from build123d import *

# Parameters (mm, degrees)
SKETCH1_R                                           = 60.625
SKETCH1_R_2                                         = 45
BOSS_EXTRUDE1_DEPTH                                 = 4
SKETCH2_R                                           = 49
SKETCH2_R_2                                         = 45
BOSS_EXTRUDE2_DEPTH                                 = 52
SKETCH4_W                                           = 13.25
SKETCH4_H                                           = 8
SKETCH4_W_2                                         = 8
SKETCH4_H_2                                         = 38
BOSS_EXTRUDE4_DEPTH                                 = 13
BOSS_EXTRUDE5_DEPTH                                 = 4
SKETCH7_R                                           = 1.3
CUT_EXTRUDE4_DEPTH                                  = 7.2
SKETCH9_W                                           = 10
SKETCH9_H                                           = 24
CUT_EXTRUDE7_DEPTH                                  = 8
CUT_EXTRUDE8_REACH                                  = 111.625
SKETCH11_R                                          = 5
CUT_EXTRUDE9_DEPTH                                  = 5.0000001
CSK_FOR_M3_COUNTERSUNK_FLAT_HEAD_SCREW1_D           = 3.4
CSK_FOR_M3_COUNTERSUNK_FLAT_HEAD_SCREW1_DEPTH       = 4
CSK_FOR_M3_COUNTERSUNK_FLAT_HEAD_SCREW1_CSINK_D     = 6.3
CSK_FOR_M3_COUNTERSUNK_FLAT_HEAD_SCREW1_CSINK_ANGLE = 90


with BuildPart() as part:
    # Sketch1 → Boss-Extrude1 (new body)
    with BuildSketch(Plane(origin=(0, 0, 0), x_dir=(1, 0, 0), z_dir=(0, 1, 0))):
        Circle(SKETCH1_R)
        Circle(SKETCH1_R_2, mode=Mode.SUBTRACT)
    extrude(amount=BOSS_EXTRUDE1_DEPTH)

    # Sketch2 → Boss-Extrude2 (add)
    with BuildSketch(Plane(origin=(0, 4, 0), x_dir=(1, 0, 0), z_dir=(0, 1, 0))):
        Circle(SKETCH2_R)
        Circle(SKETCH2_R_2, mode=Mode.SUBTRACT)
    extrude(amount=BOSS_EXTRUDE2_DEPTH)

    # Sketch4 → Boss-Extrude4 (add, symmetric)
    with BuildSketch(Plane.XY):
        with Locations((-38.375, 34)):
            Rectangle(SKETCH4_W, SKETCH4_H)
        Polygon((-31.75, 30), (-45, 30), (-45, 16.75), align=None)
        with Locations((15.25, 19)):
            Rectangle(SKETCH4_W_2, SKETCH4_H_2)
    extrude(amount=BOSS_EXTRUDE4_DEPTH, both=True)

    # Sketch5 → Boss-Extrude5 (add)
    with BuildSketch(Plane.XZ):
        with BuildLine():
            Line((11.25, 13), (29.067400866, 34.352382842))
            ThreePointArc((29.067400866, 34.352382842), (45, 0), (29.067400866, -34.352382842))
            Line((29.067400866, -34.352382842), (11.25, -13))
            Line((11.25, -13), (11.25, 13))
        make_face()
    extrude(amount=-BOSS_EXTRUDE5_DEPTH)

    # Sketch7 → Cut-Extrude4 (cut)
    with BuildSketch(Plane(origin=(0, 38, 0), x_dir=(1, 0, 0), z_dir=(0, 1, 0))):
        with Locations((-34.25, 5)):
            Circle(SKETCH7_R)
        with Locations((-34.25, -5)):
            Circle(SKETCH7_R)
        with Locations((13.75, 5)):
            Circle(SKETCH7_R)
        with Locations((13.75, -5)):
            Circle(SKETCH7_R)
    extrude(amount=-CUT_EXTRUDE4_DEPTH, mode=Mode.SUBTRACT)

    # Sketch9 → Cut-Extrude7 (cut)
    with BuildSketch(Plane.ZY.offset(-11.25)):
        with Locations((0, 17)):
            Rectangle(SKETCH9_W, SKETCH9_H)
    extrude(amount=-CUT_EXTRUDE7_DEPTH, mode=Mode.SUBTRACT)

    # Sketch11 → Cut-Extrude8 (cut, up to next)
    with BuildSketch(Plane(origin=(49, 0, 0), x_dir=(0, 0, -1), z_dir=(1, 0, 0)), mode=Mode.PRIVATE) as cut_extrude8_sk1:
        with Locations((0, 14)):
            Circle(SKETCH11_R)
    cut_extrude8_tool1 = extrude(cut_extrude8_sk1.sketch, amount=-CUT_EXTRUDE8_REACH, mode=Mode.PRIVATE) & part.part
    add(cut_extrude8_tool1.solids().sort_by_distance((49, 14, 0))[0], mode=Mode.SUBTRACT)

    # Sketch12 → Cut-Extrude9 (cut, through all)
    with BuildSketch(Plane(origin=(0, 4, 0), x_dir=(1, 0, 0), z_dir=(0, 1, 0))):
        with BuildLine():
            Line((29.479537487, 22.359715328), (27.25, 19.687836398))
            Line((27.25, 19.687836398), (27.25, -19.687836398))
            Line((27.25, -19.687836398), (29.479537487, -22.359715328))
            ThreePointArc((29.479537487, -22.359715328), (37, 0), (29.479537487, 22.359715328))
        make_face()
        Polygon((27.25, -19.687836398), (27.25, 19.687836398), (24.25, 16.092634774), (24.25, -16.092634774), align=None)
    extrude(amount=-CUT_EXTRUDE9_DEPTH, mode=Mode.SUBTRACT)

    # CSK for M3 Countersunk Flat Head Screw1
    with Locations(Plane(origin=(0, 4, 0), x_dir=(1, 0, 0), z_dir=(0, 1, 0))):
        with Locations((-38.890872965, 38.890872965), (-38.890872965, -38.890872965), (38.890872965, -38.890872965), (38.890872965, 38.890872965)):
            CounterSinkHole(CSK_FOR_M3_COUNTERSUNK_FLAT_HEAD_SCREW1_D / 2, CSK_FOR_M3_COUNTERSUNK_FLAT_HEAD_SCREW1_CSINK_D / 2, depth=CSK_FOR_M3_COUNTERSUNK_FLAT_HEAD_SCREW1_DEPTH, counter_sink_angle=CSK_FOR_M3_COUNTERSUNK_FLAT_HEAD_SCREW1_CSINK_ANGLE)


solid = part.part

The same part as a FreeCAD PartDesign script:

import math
import FreeCAD as App
import Part
import Sketcher

V = App.Vector
Q = App.Units.Quantity

doc = App.newDocument("Part")
params = doc.addObject("Spreadsheet::Sheet", "Params")
for row, (alias, value) in enumerate([
    ("sketch1_diameter", "90 mm"),
    ("sketch1_diameter2", "121.25 mm"),
    ("pad1_length", "4 mm"),
    ("sketch2_diameter", "98 mm"),
    ("sketch2_diameter2", "90 mm"),
    ("pad2_length", "52 mm"),
    ("sketch3_width", "8 mm"),
    ("sketch3_height", "38 mm"),
    ("sketch3_width2", "13.25 mm"),
    ("pad3_length", "26 mm"),
    ("sketch4_radius", "45 mm"),
    ("sketch4_height", "26 mm"),
    ("pad4_length", "4 mm"),
    ("sketch5_diameter", "2.6 mm"),
    ("pocket1_length", "7.2 mm"),
    ("sketch6_width", "24 mm"),
    ("sketch6_height", "10 mm"),
    ("pocket2_length", "8 mm"),
    ("sketch7_diameter", "10 mm"),
    ("sketch8_radius", "37 mm"),
    ("sketch9_diameter", "3.4 mm"),
    ("hole_diameter", "3.4 mm"),
    ("hole_depth", "4 mm"),
    ("hole_csink_diameter", "6.3 mm"),
], start=1):
    params.set(f"A{row}", alias)
    params.set(f"B{row}", "=" + value)
    params.setAlias(f"B{row}", alias)

body = doc.addObject("PartDesign::Body", "Body")
body.AllowCompound = True

# Sketch on XZ plane
sketch1 = body.newObject("Sketcher::SketchObject", "Sketch")
sketch1.AttachmentSupport = (doc.getObject("XZ_Plane"), [""])
sketch1.MapMode = "FlatFace"
sketch1.addGeometry([
    Part.Circle(V(0, 0, 0), V(0, 0, 1), 60.625),
    Part.Circle(V(0, 0, 0), V(0, 0, 1), 45),
], False)
sketch1.addConstraint([
    Sketcher.Constraint("Coincident", 0, 3, -1, 1),
    Sketcher.Constraint("Coincident", 1, 3, -1, 1),
    Sketcher.Constraint("Diameter", 1, Q("90 mm")),
    Sketcher.Constraint("Diameter", 0, Q("121.25 mm")),
])
sketch1.setExpression("Constraints[2]", "Params.sketch1_diameter")
sketch1.setExpression("Constraints[3]", "Params.sketch1_diameter2")
pad1 = body.newObject("PartDesign::Pad", "Pad")
pad1.Profile = sketch1
pad1.setExpression("Length", "Params.pad1_length")
pad1.Reversed = True

# Sketch on XZ plane
sketch2 = body.newObject("Sketcher::SketchObject", "Sketch001")
sketch2.AttachmentSupport = (doc.getObject("XZ_Plane"), [""])
sketch2.MapMode = "FlatFace"
sketch2.AttachmentOffset = App.Placement(V(0, 0, -4), App.Rotation())
sketch2.addGeometry([
    Part.Circle(V(0, 0, 0), V(0, 0, 1), 49),
    Part.Circle(V(0, 0, 0), V(0, 0, 1), 45),
], False)
sketch2.addConstraint([
    Sketcher.Constraint("Coincident", 0, 3, -1, 1),
    Sketcher.Constraint("Coincident", 1, 3, -1, 1),
    Sketcher.Constraint("Diameter", 0, Q("98 mm")),
    Sketcher.Constraint("Diameter", 1, Q("90 mm")),
])
sketch2.setExpression("Constraints[2]", "Params.sketch2_diameter")
sketch2.setExpression("Constraints[3]", "Params.sketch2_diameter2")
pad2 = body.newObject("PartDesign::Pad", "Pad001")
pad2.Profile = sketch2
pad2.setExpression("Length", "Params.pad2_length")
pad2.Reversed = True

# Sketch on XY plane
sketch3 = body.newObject("Sketcher::SketchObject", "Sketch002")
sketch3.AttachmentSupport = (doc.getObject("XY_Plane"), [""])
sketch3.MapMode = "FlatFace"
sketch3.addGeometry([
    Part.LineSegment(V(-45, 38, 0), V(-45, 16.75, 0)),  # 0
    Part.LineSegment(V(-45, 16.75, 0), V(-31.75, 30, 0)),  # 1
    Part.LineSegment(V(-31.75, 30, 0), V(-31.75, 38, 0)),  # 2
    Part.LineSegment(V(-31.75, 38, 0), V(-45, 38, 0)),  # 3
    Part.LineSegment(V(11.25, 38, 0), V(11.25, 0, 0)),  # 4
    Part.LineSegment(V(11.25, 0, 0), V(19.25, 0, 0)),  # 5
    Part.LineSegment(V(19.25, 0, 0), V(19.25, 38, 0)),  # 6
    Part.LineSegment(V(19.25, 38, 0), V(11.25, 38, 0)),  # 7
], False)
sketch3.addConstraint([
    Sketcher.Constraint("Coincident", 0, 2, 1, 1),
    Sketcher.Constraint("Coincident", 1, 2, 2, 1),
    Sketcher.Constraint("Coincident", 2, 2, 3, 1),
    Sketcher.Constraint("Coincident", 3, 2, 0, 1),
    Sketcher.Constraint("Coincident", 4, 2, 5, 1),
    Sketcher.Constraint("Coincident", 5, 2, 6, 1),
    Sketcher.Constraint("Coincident", 6, 2, 7, 1),
    Sketcher.Constraint("Coincident", 7, 2, 4, 1),
    Sketcher.Constraint("Vertical", 0),
    Sketcher.Constraint("Vertical", 2),
    Sketcher.Constraint("Horizontal", 3),
    Sketcher.Constraint("Vertical", 4),
    Sketcher.Constraint("Horizontal", 5),
    Sketcher.Constraint("Vertical", 6),
    Sketcher.Constraint("Horizontal", 7),
    Sketcher.Constraint("PointOnObject", 4, 2, -1),
    Sketcher.Constraint("Horizontal", 3, 2, 6, 2),
    Sketcher.Constraint("Equal", 7, 2),
    Sketcher.Constraint("DistanceX", 5, 1, 5, 2, Q("8 mm")),
    Sketcher.Constraint("DistanceY", 4, 2, 4, 1, Q("38 mm")),
    Sketcher.Constraint("Angle", 1, Q("45 deg")),
    Sketcher.Constraint("DistanceX", 0, 2, -1, 1, Q("45 mm")),
    Sketcher.Constraint("DistanceX", 1, 2, 4, 2, Q("43 mm")),
    Sketcher.Constraint("DistanceX", 3, 2, 3, 1, Q("13.25 mm")),
])
sketch3.setExpression("Constraints[18]", "Params.sketch3_width")
sketch3.setExpression("Constraints[19]", "Params.sketch3_height")
sketch3.setExpression("Constraints[23]", "Params.sketch3_width2")
pad3 = body.newObject("PartDesign::Pad", "Pad002")
pad3.Profile = sketch3
pad3.setExpression("Length", "Params.pad3_length")
pad3.Midplane = True

# Sketch on XZ plane
sketch4 = body.newObject("Sketcher::SketchObject", "Sketch003")
sketch4.AttachmentSupport = (doc.getObject("XZ_Plane"), [""])
sketch4.MapMode = "FlatFace"
sketch4.addGeometry([
    Part.LineSegment(V(29.067401, 34.352383, 0), V(11.25, 13, 0)),
    Part.LineSegment(V(11.25, 13, 0), V(11.25, -13, 0)),
    Part.LineSegment(V(11.25, -13, 0), V(29.067401, -34.352383, 0)),
    Part.ArcOfCircle(Part.Circle(V(0, 0, 0), V(0, 0, 1), 45), math.radians(-49.763642), math.radians(49.763642)),
], False)
sketch4.addConstraint([
    Sketcher.Constraint("Coincident", 0, 2, 1, 1),
    Sketcher.Constraint("Coincident", 1, 2, 2, 1),
    Sketcher.Constraint("Coincident", 2, 2, 3, 1),
    Sketcher.Constraint("Coincident", 3, 2, 0, 1),
    Sketcher.Constraint("Vertical", 1),
    Sketcher.Constraint("Coincident", 3, 3, -1, 1),
    Sketcher.Constraint("Vertical", 2, 2, 3, 2),
    Sketcher.Constraint("Equal", 0, 2),
    Sketcher.Constraint("Radius", 3, Q("45 mm")),
    Sketcher.Constraint("DistanceY", 1, 2, 1, 1, Q("26 mm")),
    Sketcher.Constraint("DistanceX", -1, 1, 0, 2, Q("11.25 mm")),
    Sketcher.Constraint("DistanceX", -1, 1, 2, 2, Q("29.067401 mm")),
])
sketch4.setExpression("Constraints[8]", "Params.sketch4_radius")
sketch4.setExpression("Constraints[9]", "Params.sketch4_height")
pad4 = body.newObject("PartDesign::Pad", "Pad003")
pad4.Profile = sketch4
pad4.setExpression("Length", "Params.pad4_length")
pad4.Reversed = True

# Sketch on XZ plane
sketch5 = body.newObject("Sketcher::SketchObject", "Sketch004")
sketch5.AttachmentSupport = (doc.getObject("XZ_Plane"), [""])
sketch5.MapMode = "FlatFace"
sketch5.AttachmentOffset = App.Placement(V(0, 0, -38), App.Rotation())
sketch5.addGeometry([
    Part.Circle(V(-34.25, -5, 0), V(0, 0, 1), 1.3),
    Part.Circle(V(-34.25, 5, 0), V(0, 0, 1), 1.3),
    Part.Circle(V(13.75, -5, 0), V(0, 0, 1), 1.3),
    Part.Circle(V(13.75, 5, 0), V(0, 0, 1), 1.3),
], False)
sketch5.addConstraint([
    Sketcher.Constraint("Equal", 0, 1),
    Sketcher.Constraint("Equal", 1, 2),
    Sketcher.Constraint("Equal", 2, 3),
    Sketcher.Constraint("Symmetric", 0, 3, 1, 3, -1),
    Sketcher.Constraint("Symmetric", 2, 3, 3, 3, -1),
    Sketcher.Constraint("Horizontal", 0, 3, 2, 3),
    Sketcher.Constraint("Diameter", 0, Q("2.6 mm")),
    Sketcher.Constraint("DistanceY", 0, 3, -1, 1, Q("5 mm")),
    Sketcher.Constraint("DistanceX", 0, 3, 2, 3, Q("48 mm")),
    Sketcher.Constraint("DistanceX", 0, 3, -1, 1, Q("34.25 mm")),
])
sketch5.setExpression("Constraints[6]", "Params.sketch5_diameter")
pocket1 = body.newObject("PartDesign::Pocket", "Pocket")
pocket1.Profile = sketch5
pocket1.setExpression("Length", "Params.pocket1_length")
pocket1.Reversed = True

# Sketch on YZ plane
sketch6 = body.newObject("Sketcher::SketchObject", "Sketch005")
sketch6.AttachmentSupport = (doc.getObject("YZ_Plane"), [""])
sketch6.MapMode = "FlatFace"
sketch6.AttachmentOffset = App.Placement(V(0, 0, 11.25), App.Rotation())
sketch6.addGeometry([
    Part.LineSegment(V(29, -5, 0), V(5, -5, 0)),
    Part.LineSegment(V(5, -5, 0), V(5, 5, 0)),
    Part.LineSegment(V(5, 5, 0), V(29, 5, 0)),
    Part.LineSegment(V(29, 5, 0), V(29, -5, 0)),
], False)
sketch6.addConstraint([
    Sketcher.Constraint("Coincident", 0, 2, 1, 1),
    Sketcher.Constraint("Coincident", 1, 2, 2, 1),
    Sketcher.Constraint("Coincident", 2, 2, 3, 1),
    Sketcher.Constraint("Coincident", 3, 2, 0, 1),
    Sketcher.Constraint("Horizontal", 0),
    Sketcher.Constraint("Vertical", 1),
    Sketcher.Constraint("Horizontal", 2),
    Sketcher.Constraint("Vertical", 3),
    Sketcher.Constraint("DistanceX", 0, 2, 0, 1, Q("24 mm")),
    Sketcher.Constraint("DistanceY", 1, 1, 1, 2, Q("10 mm")),
    Sketcher.Constraint("DistanceX", -1, 1, 0, 2, Q("5 mm")),
    Sketcher.Constraint("DistanceY", 0, 2, -1, 1, Q("5 mm")),
])
sketch6.setExpression("Constraints[8]", "Params.sketch6_width")
sketch6.setExpression("Constraints[9]", "Params.sketch6_height")
pocket2 = body.newObject("PartDesign::Pocket", "Pocket001")
pocket2.Profile = sketch6
pocket2.setExpression("Length", "Params.pocket2_length")
pocket2.Reversed = True

# Sketch on YZ plane
sketch7 = body.newObject("Sketcher::SketchObject", "Sketch006")
sketch7.AttachmentSupport = (doc.getObject("YZ_Plane"), [""])
sketch7.MapMode = "FlatFace"
sketch7.AttachmentOffset = App.Placement(V(0, 0, 49), App.Rotation())
sketch7.addGeometry(Part.Circle(V(14, 0, 0), V(0, 0, 1), 5), False)
sketch7.addConstraint([
    Sketcher.Constraint("PointOnObject", 0, 3, -1),
    Sketcher.Constraint("Diameter", 0, Q("10 mm")),
    Sketcher.Constraint("DistanceX", -1, 1, 0, 3, Q("14 mm")),
])
sketch7.setExpression("Constraints[1]", "Params.sketch7_diameter")
pocket3 = body.newObject("PartDesign::Pocket", "Pocket002")
pocket3.Profile = sketch7
pocket3.Type = "UpToFirst"

# Sketch on XZ plane
sketch8 = body.newObject("Sketcher::SketchObject", "Sketch007")
sketch8.AttachmentSupport = (doc.getObject("XZ_Plane"), [""])
sketch8.MapMode = "FlatFace"
sketch8.AttachmentOffset = App.Placement(V(0, 0, -4), App.Rotation())
sketch8.addGeometry([
    Part.LineSegment(V(29.479537, -22.359715, 0), V(27.25, -19.687836, 0)),  # 0
    Part.LineSegment(V(27.25, -19.687836, 0), V(24.25, -16.092635, 0)),  # 1
    Part.LineSegment(V(24.25, -16.092635, 0), V(24.25, 16.092635, 0)),  # 2
    Part.LineSegment(V(24.25, 16.092635, 0), V(27.25, 19.687836, 0)),  # 3
    Part.LineSegment(V(27.25, 19.687836, 0), V(29.479537, 22.359715, 0)),  # 4
    Part.ArcOfCircle(Part.Circle(V(0, 0, 0), V(0, 0, 1), 37), math.radians(-37.179683), math.radians(37.179683)),  # 5
], False)
sketch8.addConstraint([
    Sketcher.Constraint("Coincident", 0, 2, 1, 1),
    Sketcher.Constraint("Coincident", 1, 2, 2, 1),
    Sketcher.Constraint("Coincident", 2, 2, 3, 1),
    Sketcher.Constraint("Coincident", 3, 2, 4, 1),
    Sketcher.Constraint("Coincident", 4, 2, 5, 2),
    Sketcher.Constraint("Coincident", 5, 1, 0, 1),
    Sketcher.Constraint("Vertical", 2),
    Sketcher.Constraint("Coincident", 5, 3, -1, 1),
    Sketcher.Constraint("Symmetric", 0, 2, 3, 2, -1),
    Sketcher.Constraint("Parallel", 0, 1),
    Sketcher.Constraint("Parallel", 3, 4),
    Sketcher.Constraint("Vertical", 4, 2, 5, 1),
    Sketcher.Constraint("Radius", 5, Q("37 mm")),
    Sketcher.Constraint("DistanceX", 1, 2, 0, 2, Q("3 mm")),
    Sketcher.Constraint("DistanceX", -1, 1, 0, 2, Q("27.25 mm")),
    Sketcher.Constraint("DistanceY", 2, 1, 2, 2, Q("32.18527 mm")),
    Sketcher.Constraint("DistanceY", 0, 2, 1, 2, Q("3.595202 mm")),
])
sketch8.setExpression("Constraints[12]", "Params.sketch8_radius")
pocket4 = body.newObject("PartDesign::Pocket", "Pocket003")
pocket4.Profile = sketch8
pocket4.Type = "ThroughAll"
pocket4.Reversed = True

# Sketch on XZ plane
sketch9 = body.newObject("Sketcher::SketchObject", "Sketch008")
sketch9.AttachmentSupport = (doc.getObject("XZ_Plane"), [""])
sketch9.MapMode = "FlatFace"
sketch9.AttachmentOffset = App.Placement(V(0, 0, -4), App.Rotation())
sketch9.addGeometry([
    Part.Circle(V(-38.890873, -38.890873, 0), V(0, 0, 1), 1.7),
    Part.Circle(V(-38.890873, 38.890873, 0), V(0, 0, 1), 1.7),
    Part.Circle(V(38.890873, 38.890873, 0), V(0, 0, 1), 1.7),
    Part.Circle(V(38.890873, -38.890873, 0), V(0, 0, 1), 1.7),
], False)
sketch9.addConstraint([
    Sketcher.Constraint("Equal", 0, 1),
    Sketcher.Constraint("Equal", 1, 2),
    Sketcher.Constraint("Equal", 2, 3),
    Sketcher.Constraint("Symmetric", 0, 3, 2, 3, -1, 1),
    Sketcher.Constraint("Symmetric", 1, 3, 3, 3, -1, 1),
    Sketcher.Constraint("Symmetric", 1, 3, 2, 3, -2),
    Sketcher.Constraint("Diameter", 0, Q("3.4 mm")),
    Sketcher.Constraint("DistanceX", 0, 3, -1, 1, Q("38.890873 mm")),
    Sketcher.Constraint("DistanceY", 0, 3, -1, 1, Q("38.890873 mm")),
])
sketch9.setExpression("Constraints[6]", "Params.sketch9_diameter")
doc.recompute()
hole = body.newObject("PartDesign::Hole", "Hole")
hole.Profile = sketch9
hole.ThreadType = "None"
hole.setExpression("Diameter", "Params.hole_diameter")
hole.DepthType = "Dimension"
hole.setExpression("Depth", "Params.hole_depth")
hole.DrillPoint = "Flat"
hole.HoleCutType = "Countersink"
hole.setExpression("HoleCutDiameter", "Params.hole_csink_diameter")
hole.HoleCutCountersinkAngle = 90
hole.Reversed = True

doc.recompute()
